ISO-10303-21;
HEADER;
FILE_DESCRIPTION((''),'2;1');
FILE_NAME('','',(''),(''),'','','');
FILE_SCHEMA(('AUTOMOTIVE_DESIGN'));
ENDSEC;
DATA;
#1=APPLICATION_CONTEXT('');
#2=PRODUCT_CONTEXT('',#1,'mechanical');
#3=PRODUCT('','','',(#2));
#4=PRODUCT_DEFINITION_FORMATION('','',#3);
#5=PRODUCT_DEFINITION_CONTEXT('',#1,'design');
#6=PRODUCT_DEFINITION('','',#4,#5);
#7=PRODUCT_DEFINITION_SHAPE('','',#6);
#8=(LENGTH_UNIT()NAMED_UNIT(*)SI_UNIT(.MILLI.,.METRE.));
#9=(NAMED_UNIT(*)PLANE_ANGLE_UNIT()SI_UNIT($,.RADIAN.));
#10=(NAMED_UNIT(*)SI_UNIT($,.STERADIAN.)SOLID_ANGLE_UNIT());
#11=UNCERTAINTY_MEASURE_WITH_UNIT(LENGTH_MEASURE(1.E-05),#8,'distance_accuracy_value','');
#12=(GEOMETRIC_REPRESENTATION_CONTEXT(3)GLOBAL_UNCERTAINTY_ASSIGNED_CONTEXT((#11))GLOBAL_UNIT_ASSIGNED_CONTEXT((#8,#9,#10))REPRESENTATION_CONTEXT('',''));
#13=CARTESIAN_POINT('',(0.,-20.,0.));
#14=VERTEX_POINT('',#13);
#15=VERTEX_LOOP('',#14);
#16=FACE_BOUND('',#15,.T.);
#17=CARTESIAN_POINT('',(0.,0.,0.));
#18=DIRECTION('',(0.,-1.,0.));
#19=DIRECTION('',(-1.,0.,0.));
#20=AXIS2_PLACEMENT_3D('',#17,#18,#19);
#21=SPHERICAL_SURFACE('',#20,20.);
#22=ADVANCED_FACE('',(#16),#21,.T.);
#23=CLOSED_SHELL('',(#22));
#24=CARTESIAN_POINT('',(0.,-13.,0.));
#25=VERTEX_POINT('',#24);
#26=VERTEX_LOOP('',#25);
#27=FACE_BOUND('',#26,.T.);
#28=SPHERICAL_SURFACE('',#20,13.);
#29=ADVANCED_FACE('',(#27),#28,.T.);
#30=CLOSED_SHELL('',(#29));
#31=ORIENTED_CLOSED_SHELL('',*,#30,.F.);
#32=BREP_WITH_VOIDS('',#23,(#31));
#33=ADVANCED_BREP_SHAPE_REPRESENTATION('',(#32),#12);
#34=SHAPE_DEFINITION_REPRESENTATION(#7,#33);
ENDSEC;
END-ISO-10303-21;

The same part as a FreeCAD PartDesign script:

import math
import FreeCAD as App
import Part
import Sketcher

doc = App.newDocument("Part")
body = doc.addObject("PartDesign::Body", "Body")

sketch1 = body.newObject("Sketcher::SketchObject", "Sketch")
sketch1.AttachmentSupport = (doc.getObject("XY_Plane"), [""])
sketch1.MapMode = "FlatFace"
sketch1.addGeometry([
    Part.LineSegment(App.Vector(0, 13, 0), App.Vector(0, 20, 0)),
    Part.ArcOfCircle(Part.Circle(App.Vector(0, 0, 0), App.Vector(0, 0, 1), 20), math.radians(90), math.radians(270)),
    Part.LineSegment(App.Vector(0, -20, 0), App.Vector(0, -13, 0)),
    Part.ArcOfCircle(Part.Circle(App.Vector(0, 0, 0), App.Vector(0, 0, 1), 13), math.radians(90), math.radians(270)),
], False)
sketch1.addConstraint([
    Sketcher.Constraint("Coincident", 0, 2, 1, 1),
    Sketcher.Constraint("Coincident", 1, 2, 2, 1),
    Sketcher.Constraint("Coincident", 2, 2, 3, 2),
    Sketcher.Constraint("Coincident", 3, 1, 0, 1),
    Sketcher.Constraint("Vertical", 0),
    Sketcher.Constraint("Vertical", 2),
    Sketcher.Constraint("Coincident", 1, 3, -1, 1),
    Sketcher.Constraint("Coincident", 3, 3, -1, 1),
    Sketcher.Constraint("PointOnObject", 0, 2, -2),
    Sketcher.Constraint("PointOnObject", 1, 2, -2),
    Sketcher.Constraint("Radius", 1, 20.0),
    Sketcher.Constraint("Radius", 3, 13.0),
])
revolution = body.newObject("PartDesign::Revolution", "Revolution")
revolution.Profile = sketch1
revolution.ReferenceAxis = (sketch1, ["V_Axis"])
revolution.Angle = 360

doc.recompute()
